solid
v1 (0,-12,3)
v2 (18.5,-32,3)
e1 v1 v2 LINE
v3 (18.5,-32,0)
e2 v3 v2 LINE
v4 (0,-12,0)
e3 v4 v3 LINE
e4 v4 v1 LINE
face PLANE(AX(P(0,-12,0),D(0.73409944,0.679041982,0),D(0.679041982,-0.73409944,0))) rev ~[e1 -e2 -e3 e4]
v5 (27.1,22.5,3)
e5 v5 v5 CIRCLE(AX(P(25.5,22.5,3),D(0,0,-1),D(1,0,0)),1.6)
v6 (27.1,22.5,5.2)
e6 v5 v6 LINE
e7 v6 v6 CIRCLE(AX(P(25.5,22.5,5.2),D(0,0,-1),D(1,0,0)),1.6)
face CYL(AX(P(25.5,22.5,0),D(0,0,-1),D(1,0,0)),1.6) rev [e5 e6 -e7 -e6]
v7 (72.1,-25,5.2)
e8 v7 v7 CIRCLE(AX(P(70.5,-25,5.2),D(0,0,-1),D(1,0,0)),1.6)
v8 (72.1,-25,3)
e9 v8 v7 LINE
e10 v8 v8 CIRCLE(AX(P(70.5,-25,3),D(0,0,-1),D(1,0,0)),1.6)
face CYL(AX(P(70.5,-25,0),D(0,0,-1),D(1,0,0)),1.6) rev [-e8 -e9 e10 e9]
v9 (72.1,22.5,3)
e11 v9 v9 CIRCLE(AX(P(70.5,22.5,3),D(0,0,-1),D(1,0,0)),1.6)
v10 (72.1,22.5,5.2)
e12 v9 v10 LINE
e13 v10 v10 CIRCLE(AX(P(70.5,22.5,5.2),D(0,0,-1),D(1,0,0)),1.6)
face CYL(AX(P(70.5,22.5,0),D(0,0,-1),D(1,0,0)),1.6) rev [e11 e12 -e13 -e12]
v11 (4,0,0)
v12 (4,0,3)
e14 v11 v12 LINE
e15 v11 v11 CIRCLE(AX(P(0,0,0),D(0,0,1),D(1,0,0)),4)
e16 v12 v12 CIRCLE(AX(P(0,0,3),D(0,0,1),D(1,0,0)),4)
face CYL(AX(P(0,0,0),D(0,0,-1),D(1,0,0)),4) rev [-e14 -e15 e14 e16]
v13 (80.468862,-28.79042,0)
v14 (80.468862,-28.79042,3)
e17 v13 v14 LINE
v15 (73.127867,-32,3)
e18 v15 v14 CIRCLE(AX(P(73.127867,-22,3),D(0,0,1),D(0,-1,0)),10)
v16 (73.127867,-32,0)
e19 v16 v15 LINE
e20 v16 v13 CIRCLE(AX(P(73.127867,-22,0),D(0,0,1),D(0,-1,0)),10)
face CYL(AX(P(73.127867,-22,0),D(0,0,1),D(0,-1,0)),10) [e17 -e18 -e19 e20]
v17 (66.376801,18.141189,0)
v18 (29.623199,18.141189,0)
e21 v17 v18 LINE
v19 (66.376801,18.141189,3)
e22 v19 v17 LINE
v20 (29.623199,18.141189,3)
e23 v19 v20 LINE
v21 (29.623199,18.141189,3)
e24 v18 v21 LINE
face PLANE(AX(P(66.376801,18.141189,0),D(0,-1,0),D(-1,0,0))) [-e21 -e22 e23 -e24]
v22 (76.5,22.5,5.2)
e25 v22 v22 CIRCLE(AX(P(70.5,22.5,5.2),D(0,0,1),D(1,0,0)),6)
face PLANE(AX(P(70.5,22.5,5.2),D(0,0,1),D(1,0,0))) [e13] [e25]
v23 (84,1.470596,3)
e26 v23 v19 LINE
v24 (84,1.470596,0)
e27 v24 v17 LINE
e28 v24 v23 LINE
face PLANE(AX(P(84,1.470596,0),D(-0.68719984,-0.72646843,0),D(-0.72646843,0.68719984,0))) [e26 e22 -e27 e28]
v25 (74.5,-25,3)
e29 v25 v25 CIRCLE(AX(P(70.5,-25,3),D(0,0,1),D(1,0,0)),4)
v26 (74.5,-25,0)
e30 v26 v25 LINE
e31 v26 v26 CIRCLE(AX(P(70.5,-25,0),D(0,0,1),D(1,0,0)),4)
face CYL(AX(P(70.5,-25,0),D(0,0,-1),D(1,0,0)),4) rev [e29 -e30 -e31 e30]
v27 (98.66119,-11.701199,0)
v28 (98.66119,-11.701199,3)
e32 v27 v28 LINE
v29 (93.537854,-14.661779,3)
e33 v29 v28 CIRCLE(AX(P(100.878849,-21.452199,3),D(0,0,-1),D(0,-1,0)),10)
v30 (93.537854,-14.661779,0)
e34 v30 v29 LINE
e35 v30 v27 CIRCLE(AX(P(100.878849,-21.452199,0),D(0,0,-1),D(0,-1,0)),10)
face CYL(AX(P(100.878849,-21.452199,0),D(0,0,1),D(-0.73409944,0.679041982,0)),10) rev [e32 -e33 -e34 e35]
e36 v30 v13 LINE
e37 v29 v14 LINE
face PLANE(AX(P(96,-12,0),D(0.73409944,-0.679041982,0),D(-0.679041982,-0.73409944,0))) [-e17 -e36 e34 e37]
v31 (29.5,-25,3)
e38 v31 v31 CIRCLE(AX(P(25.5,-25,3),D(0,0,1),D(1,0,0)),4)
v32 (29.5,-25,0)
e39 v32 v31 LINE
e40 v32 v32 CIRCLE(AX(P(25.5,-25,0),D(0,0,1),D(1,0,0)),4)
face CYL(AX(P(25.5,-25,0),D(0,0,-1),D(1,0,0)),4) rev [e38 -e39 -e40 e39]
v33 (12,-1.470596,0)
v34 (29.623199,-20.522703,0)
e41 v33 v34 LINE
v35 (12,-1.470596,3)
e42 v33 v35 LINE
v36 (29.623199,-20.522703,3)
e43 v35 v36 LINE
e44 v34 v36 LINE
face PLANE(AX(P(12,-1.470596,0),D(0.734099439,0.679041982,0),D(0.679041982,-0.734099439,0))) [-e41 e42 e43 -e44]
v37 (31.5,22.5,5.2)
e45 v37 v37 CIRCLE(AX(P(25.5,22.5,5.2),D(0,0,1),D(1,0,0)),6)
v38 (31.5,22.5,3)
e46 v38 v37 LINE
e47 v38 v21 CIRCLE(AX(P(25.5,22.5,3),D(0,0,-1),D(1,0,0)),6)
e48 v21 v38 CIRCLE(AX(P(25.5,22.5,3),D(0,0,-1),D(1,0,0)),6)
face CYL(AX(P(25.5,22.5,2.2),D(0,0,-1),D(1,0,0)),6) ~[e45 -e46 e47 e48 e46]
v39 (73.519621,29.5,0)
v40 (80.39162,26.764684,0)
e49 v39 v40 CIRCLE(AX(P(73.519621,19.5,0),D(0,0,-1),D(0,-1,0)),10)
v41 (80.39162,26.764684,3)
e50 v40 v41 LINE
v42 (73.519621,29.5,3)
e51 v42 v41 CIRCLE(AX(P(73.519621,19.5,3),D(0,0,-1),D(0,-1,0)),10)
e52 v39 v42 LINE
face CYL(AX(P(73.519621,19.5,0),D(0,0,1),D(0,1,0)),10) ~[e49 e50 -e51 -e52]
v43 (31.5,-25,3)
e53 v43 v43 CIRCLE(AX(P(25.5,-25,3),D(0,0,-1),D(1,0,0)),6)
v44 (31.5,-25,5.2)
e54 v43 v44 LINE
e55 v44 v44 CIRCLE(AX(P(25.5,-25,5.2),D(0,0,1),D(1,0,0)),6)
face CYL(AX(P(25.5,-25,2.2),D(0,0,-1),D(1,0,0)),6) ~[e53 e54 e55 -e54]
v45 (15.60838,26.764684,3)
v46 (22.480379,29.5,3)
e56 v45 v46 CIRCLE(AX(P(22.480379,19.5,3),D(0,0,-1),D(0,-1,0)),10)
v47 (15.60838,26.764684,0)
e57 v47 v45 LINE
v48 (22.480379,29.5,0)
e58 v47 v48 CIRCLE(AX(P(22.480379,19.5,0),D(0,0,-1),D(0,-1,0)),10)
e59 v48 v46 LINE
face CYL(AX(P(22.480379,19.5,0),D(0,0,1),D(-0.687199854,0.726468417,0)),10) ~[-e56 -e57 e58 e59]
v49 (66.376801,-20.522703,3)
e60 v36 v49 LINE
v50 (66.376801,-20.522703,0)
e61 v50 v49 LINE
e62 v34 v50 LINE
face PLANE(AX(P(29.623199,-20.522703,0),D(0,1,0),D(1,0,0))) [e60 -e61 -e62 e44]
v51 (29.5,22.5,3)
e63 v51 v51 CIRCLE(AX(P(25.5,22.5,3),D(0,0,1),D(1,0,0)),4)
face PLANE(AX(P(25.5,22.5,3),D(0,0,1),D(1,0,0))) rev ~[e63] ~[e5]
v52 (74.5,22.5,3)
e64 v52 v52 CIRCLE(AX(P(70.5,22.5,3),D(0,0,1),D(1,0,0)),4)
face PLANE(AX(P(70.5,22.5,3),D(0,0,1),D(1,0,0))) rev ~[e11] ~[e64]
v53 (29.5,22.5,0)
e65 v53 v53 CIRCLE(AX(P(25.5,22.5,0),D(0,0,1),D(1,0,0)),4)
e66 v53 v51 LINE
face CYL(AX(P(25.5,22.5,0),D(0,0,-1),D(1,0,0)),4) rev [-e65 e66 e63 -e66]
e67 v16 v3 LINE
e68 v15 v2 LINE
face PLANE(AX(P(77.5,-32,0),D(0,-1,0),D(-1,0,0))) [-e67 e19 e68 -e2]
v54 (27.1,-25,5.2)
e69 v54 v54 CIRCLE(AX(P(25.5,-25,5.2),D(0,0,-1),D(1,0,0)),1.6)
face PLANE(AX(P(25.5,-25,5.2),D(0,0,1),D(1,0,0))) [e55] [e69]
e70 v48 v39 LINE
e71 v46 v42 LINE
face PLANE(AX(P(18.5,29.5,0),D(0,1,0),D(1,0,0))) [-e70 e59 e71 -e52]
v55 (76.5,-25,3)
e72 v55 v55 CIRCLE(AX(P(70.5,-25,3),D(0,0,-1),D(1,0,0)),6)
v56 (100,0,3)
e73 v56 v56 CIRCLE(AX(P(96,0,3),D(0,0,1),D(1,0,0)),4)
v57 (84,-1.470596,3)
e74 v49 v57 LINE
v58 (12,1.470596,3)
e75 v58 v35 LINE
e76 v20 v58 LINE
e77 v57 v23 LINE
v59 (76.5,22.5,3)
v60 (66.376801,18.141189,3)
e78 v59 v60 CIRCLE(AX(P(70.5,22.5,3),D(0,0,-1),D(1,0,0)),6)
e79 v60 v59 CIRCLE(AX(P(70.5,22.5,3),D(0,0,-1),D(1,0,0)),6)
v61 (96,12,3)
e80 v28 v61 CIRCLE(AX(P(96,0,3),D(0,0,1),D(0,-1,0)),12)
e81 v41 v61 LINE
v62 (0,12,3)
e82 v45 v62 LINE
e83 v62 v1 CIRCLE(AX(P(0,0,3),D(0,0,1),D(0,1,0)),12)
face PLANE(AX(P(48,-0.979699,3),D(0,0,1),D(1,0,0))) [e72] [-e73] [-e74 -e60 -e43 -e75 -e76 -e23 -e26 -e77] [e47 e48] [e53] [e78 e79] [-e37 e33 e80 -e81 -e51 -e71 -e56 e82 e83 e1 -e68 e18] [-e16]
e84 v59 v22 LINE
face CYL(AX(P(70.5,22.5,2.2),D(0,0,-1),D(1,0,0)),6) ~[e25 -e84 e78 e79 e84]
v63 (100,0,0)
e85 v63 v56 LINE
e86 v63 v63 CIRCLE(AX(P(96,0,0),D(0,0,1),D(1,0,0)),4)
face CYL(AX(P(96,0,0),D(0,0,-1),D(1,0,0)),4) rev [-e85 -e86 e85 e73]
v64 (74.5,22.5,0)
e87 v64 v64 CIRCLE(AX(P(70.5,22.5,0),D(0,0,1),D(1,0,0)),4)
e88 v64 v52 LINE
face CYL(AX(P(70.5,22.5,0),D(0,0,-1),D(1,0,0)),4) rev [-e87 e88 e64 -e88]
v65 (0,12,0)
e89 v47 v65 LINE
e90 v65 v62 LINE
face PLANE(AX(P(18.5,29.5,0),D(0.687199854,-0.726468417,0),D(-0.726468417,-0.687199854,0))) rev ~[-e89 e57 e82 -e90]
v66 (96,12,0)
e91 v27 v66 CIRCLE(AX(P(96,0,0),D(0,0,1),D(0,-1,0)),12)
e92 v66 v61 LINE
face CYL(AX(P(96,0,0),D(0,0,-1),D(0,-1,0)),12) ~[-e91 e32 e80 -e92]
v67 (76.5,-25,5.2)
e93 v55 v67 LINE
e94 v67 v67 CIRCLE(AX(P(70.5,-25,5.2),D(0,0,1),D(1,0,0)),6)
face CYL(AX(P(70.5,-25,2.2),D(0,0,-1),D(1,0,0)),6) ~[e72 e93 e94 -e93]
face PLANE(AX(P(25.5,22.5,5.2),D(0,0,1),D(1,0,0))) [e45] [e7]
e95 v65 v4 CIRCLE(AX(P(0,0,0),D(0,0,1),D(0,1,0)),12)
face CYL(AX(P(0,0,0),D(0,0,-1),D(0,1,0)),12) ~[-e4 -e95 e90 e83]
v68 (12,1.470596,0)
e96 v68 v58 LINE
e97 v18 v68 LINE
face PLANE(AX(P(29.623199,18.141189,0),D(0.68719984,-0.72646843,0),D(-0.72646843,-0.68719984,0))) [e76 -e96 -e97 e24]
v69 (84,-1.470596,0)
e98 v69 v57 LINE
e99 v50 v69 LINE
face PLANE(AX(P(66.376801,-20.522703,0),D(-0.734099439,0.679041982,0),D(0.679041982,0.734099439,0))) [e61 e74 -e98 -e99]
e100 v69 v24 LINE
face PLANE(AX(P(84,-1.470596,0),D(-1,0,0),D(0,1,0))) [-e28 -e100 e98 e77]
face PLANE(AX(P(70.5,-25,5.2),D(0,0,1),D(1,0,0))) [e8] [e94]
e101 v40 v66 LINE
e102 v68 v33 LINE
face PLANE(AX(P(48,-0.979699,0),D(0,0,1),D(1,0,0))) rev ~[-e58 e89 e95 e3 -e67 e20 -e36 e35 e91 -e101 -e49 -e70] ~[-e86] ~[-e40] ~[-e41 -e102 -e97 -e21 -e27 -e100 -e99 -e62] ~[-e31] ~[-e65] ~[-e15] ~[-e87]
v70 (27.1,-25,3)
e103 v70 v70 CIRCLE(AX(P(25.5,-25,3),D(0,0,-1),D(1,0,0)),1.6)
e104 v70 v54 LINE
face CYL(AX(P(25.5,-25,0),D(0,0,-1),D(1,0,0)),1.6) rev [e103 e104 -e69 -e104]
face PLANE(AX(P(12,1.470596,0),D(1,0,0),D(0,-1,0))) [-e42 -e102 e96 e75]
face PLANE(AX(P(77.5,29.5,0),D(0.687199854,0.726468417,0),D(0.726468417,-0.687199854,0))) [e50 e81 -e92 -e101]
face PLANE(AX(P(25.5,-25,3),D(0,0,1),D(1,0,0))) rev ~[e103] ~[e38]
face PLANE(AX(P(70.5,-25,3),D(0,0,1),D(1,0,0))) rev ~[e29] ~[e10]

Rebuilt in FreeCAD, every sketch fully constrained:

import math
import FreeCAD as App
import Part
import Sketcher


def edges_at(feature, points):
    """Names of the edges that pass closest to the given points."""
    edges = feature.Shape.Edges
    near = lambda p: min(range(len(edges)), key=lambda i: edges[i].distToShape(Part.Vertex(*p))[0])
    return sorted({f"Edge{near(p) + 1}" for p in points})

doc = App.newDocument("Part")
body = doc.addObject("PartDesign::Body", "Body")

sketch1 = body.newObject("Sketcher::SketchObject", "Sketch")
sketch1.AttachmentSupport = (doc.getObject("XY_Plane"), [""])
sketch1.MapMode = "FlatFace"
sketch1.addGeometry([
    Part.ArcOfCircle(Part.Circle(App.Vector(0, 0, 0), App.Vector(0, 0, 1), 12), math.radians(90), math.radians(270)),
    Part.LineSegment(App.Vector(0, -12, 0), App.Vector(18.5, -32, 0)),
    Part.LineSegment(App.Vector(18.5, -32, 0), App.Vector(77.5, -32, 0)),
    Part.LineSegment(App.Vector(77.5, -32, 0), App.Vector(96, -12, 0)),
    Part.ArcOfCircle(Part.Circle(App.Vector(96, 0, 0), App.Vector(0, 0, 1), 12), math.radians(-90), math.radians(90)),
    Part.LineSegment(App.Vector(96, 12, 0), App.Vector(77.5, 29.5, 0)),
    Part.LineSegment(App.Vector(77.5, 29.5, 0), App.Vector(18.5, 29.5, 0)),
    Part.LineSegment(App.Vector(18.5, 29.5, 0), App.Vector(0, 12, 0)),
    Part.LineSegment(App.Vector(84, -1.5, 0), App.Vector(66.4, -20.5, 0)),
    Part.LineSegment(App.Vector(66.4, -20.5, 0), App.Vector(29.6, -20.5, 0)),
    Part.LineSegment(App.Vector(29.6, -20.5, 0), App.Vector(12, -1.5, 0)),
    Part.LineSegment(App.Vector(12, -1.5, 0), App.Vector(12, 1.5, 0)),
    Part.LineSegment(App.Vector(12, 1.5, 0), App.Vector(29.6, 18.1, 0)),
    Part.LineSegment(App.Vector(29.6, 18.1, 0), App.Vector(66.4, 18.1, 0)),
    Part.LineSegment(App.Vector(66.4, 18.1, 0), App.Vector(84, 1.5, 0)),
    Part.LineSegment(App.Vector(84, 1.5, 0), App.Vector(84, -1.5, 0)),
    Part.Circle(App.Vector(0, 0, 0), App.Vector(0, 0, 1), 4),
    Part.Circle(App.Vector(96, 0, 0), App.Vector(0, 0, 1), 4),
], False)
sketch1.addConstraint([
    Sketcher.Constraint("Coincident", 0, 2, 1, 1),
    Sketcher.Constraint("Coincident", 1, 2, 2, 1),
    Sketcher.Constraint("Coincident", 2, 2, 3, 1),
    Sketcher.Constraint("Coincident", 3, 2, 4, 1),
    Sketcher.Constraint("Coincident", 4, 2, 5, 1),
    Sketcher.Constraint("Coincident", 5, 2, 6, 1),
    Sketcher.Constraint("Coincident", 6, 2, 7, 1),
    Sketcher.Constraint("Coincident", 7, 2, 0, 1),
    Sketcher.Constraint("Coincident", 8, 2, 9, 1),
    Sketcher.Constraint("Coincident", 9, 2, 10, 1),
    Sketcher.Constraint("Coincident", 10, 2, 11, 1),
    Sketcher.Constraint("Coincident", 11, 2, 12, 1),
    Sketcher.Constraint("Coincident", 12, 2, 13, 1),
    Sketcher.Constraint("Coincident", 13, 2, 14, 1),
    Sketcher.Constraint("Coincident", 14, 2, 15, 1),
    Sketcher.Constraint("Coincident", 15, 2, 8, 1),
    Sketcher.Constraint("Horizontal", 2),
    Sketcher.Constraint("Horizontal", 6),
    Sketcher.Constraint("Horizontal", 9),
    Sketcher.Constraint("Vertical", 11),
    Sketcher.Constraint("Horizontal", 13),
    Sketcher.Constraint("Vertical", 15),
    Sketcher.Constraint("Coincident", 0, 3, -1, 1),
    Sketcher.Constraint("Coincident", 16, 3, -1, 1),
    Sketcher.Constraint("Coincident", 17, 3, 4, 3),
    Sketcher.Constraint("Equal", 0, 4),
    Sketcher.Constraint("Equal", 16, 17),
    Sketcher.Constraint("Symmetric", 3, 2, 4, 2, -1),
    Sketcher.Constraint("PointOnObject", 0, 2, -2),
    Sketcher.Constraint("PointOnObject", 7, 2, -2),
    Sketcher.Constraint("Parallel", 3, 8),
    Sketcher.Constraint("Parallel", 1, 10),
    Sketcher.Constraint("Parallel", 7, 12),
    Sketcher.Constraint("Parallel", 5, 14),
    Sketcher.Constraint("Horizontal", 11, 2, 14, 2),
    Sketcher.Constraint("Horizontal", 10, 2, 15, 2),
    Sketcher.Constraint("Vertical", 17, 3, 3, 2),
    Sketcher.Constraint("Vertical", 2, 2, 5, 2),
    Sketcher.Constraint("Vertical", 1, 2, 6, 2),
    Sketcher.Constraint("Vertical", 9, 2, 12, 2),
    Sketcher.Constraint("Equal", 1, 3),
    Sketcher.Constraint("Diameter", 16, 8.0),
    Sketcher.Constraint("Radius", 0, 12.0),
    Sketcher.Constraint("DistanceX", 2, 1, 2, 2, 59.0),
    Sketcher.Constraint("DistanceX", -1, 1, 4, 3, 96.0),
    Sketcher.Constraint("DistanceY", 1, 2, -1, 1, 32.0),
    Sketcher.Constraint("DistanceX", -1, 1, 10, 2, 12.0),
    Sketcher.Constraint("DistanceX", -1, 1, 14, 2, 84.0),
    Sketcher.Constraint("DistanceY", -1, 1, 5, 2, 29.5),
    Sketcher.Constraint("DistanceY", 11, 1, 11, 2, 2.941192),
    Sketcher.Constraint("DistanceX", -1, 1, 8, 2, 66.376801),
    Sketcher.Constraint("DistanceY", -1, 1, 12, 2, 18.141189),
])
pad1 = body.newObject("PartDesign::Pad", "Pad")
pad1.Profile = sketch1
pad1.Length = 3

sketch2 = body.newObject("Sketcher::SketchObject", "Sketch001")
sketch2.AttachmentSupport = (doc.getObject("XY_Plane"), [""])
sketch2.MapMode = "FlatFace"
sketch2.AttachmentOffset = App.Placement(App.Vector(0, 0, 2.2), App.Rotation())
sketch2.addGeometry([
    Part.Circle(App.Vector(26, -25, 0), App.Vector(0, 0, 1), 6),
    Part.Circle(App.Vector(70, -25, 0), App.Vector(0, 0, 1), 6),
    Part.Circle(App.Vector(26, 22, 0), App.Vector(0, 0, 1), 6),
    Part.Circle(App.Vector(70, 22, 0), App.Vector(0, 0, 1), 6),
], False)
sketch2.addConstraint([
    Sketcher.Constraint("Equal", 0, 1),
    Sketcher.Constraint("Equal", 1, 2),
    Sketcher.Constraint("Equal", 2, 3),
    Sketcher.Constraint("Horizontal", 0, 3, 1, 3),
    Sketcher.Constraint("Horizontal", 2, 3, 3, 3),
    Sketcher.Constraint("Vertical", 0, 3, 2, 3),
    Sketcher.Constraint("Vertical", 1, 3, 3, 3),
    Sketcher.Constraint("Diameter", 0, 12.0),
    Sketcher.Constraint("DistanceY", 0, 3, -1, 1, 25.0),
    Sketcher.Constraint("DistanceX", 0, 3, 1, 3, 45.0),
    Sketcher.Constraint("DistanceX", -1, 1, 0, 3, 25.5),
    Sketcher.Constraint("DistanceY", -1, 1, 2, 3, 22.5),
])
pad2 = body.newObject("PartDesign::Pad", "Pad001")
pad2.Profile = sketch2
pad2.Length = 3

sketch3 = body.newObject("Sketcher::SketchObject", "Sketch002")
sketch3.AttachmentSupport = (doc.getObject("XY_Plane"), [""])
sketch3.MapMode = "FlatFace"
sketch3.addGeometry([
    Part.Circle(App.Vector(25.5, -25, 0), App.Vector(0, 0, 1), 4),
    Part.Circle(App.Vector(70.5, -25, 0), App.Vector(0, 0, 1), 4),
    Part.Circle(App.Vector(25.5, 22.5, 0), App.Vector(0, 0, 1), 4),
    Part.Circle(App.Vector(70.5, 22.5, 0), App.Vector(0, 0, 1), 4),
], False)
sketch3.addConstraint([
    Sketcher.Constraint("Equal", 0, 1),
    Sketcher.Constraint("Equal", 1, 2),
    Sketcher.Constraint("Equal", 2, 3),
    Sketcher.Constraint("Horizontal", 0, 3, 1, 3),
    Sketcher.Constraint("Horizontal", 2, 3, 3, 3),
    Sketcher.Constraint("Vertical", 0, 3, 2, 3),
    Sketcher.Constraint("Vertical", 1, 3, 3, 3),
    Sketcher.Constraint("Diameter", 0, 8.0),
    Sketcher.Constraint("DistanceY", 0, 3, -1, 1, 25.0),
    Sketcher.Constraint("DistanceX", 0, 3, 1, 3, 45.0),
    Sketcher.Constraint("DistanceX", -1, 1, 0, 3, 25.5),
    Sketcher.Constraint("DistanceY", -1, 1, 2, 3, 22.5),
])
pocket1 = body.newObject("PartDesign::Pocket", "Pocket")
pocket1.Profile = sketch3
pocket1.Length = 3
pocket1.Reversed = True

sketch4 = body.newObject("Sketcher::SketchObject", "Sketch003")
sketch4.AttachmentSupport = (doc.getObject("XY_Plane"), [""])
sketch4.MapMode = "FlatFace"
sketch4.addGeometry([
    Part.Circle(App.Vector(25.5, -25, 0), App.Vector(0, 0, 1), 1.6),
    Part.Circle(App.Vector(70.5, -25, 0), App.Vector(0, 0, 1), 1.6),
    Part.Circle(App.Vector(25.5, 22.5, 0), App.Vector(0, 0, 1), 1.6),
    Part.Circle(App.Vector(70.5, 22.5, 0), App.Vector(0, 0, 1), 1.6),
], False)
sketch4.addConstraint([
    Sketcher.Constraint("Equal", 0, 1),
    Sketcher.Constraint("Equal", 1, 2),
    Sketcher.Constraint("Equal", 2, 3),
    Sketcher.Constraint("Horizontal", 0, 3, 1, 3),
    Sketcher.Constraint("Horizontal", 2, 3, 3, 3),
    Sketcher.Constraint("Vertical", 0, 3, 2, 3),
    Sketcher.Constraint("Vertical", 1, 3, 3, 3),
    Sketcher.Constraint("Diameter", 0, 3.2),
    Sketcher.Constraint("DistanceY", 0, 3, -1, 1, 25.0),
    Sketcher.Constraint("DistanceX", 0, 3, 1, 3, 45.0),
    Sketcher.Constraint("DistanceX", -1, 1, 0, 3, 25.5),
    Sketcher.Constraint("DistanceY", -1, 1, 2, 3, 22.5),
])
pocket2 = body.newObject("PartDesign::Pocket", "Pocket001")
pocket2.Profile = sketch4
pocket2.Type = "ThroughAll"
pocket2.Reversed = True
doc.recompute()

fillet = body.newObject("PartDesign::Fillet", "Fillet")
fillet.Base = (pocket2, edges_at(pocket2, [(77.5, 29.5, 1.5), (18.5, 29.5, 1.5)]))
fillet.Radius = 10
doc.recompute()

fillet2 = body.newObject("PartDesign::Fillet", "Fillet001")
fillet2.Base = (fillet, edges_at(fillet, [(77.5, -32, 1.5), (96, -12, 1.5)]))
fillet2.Radius = 10

doc.recompute()
